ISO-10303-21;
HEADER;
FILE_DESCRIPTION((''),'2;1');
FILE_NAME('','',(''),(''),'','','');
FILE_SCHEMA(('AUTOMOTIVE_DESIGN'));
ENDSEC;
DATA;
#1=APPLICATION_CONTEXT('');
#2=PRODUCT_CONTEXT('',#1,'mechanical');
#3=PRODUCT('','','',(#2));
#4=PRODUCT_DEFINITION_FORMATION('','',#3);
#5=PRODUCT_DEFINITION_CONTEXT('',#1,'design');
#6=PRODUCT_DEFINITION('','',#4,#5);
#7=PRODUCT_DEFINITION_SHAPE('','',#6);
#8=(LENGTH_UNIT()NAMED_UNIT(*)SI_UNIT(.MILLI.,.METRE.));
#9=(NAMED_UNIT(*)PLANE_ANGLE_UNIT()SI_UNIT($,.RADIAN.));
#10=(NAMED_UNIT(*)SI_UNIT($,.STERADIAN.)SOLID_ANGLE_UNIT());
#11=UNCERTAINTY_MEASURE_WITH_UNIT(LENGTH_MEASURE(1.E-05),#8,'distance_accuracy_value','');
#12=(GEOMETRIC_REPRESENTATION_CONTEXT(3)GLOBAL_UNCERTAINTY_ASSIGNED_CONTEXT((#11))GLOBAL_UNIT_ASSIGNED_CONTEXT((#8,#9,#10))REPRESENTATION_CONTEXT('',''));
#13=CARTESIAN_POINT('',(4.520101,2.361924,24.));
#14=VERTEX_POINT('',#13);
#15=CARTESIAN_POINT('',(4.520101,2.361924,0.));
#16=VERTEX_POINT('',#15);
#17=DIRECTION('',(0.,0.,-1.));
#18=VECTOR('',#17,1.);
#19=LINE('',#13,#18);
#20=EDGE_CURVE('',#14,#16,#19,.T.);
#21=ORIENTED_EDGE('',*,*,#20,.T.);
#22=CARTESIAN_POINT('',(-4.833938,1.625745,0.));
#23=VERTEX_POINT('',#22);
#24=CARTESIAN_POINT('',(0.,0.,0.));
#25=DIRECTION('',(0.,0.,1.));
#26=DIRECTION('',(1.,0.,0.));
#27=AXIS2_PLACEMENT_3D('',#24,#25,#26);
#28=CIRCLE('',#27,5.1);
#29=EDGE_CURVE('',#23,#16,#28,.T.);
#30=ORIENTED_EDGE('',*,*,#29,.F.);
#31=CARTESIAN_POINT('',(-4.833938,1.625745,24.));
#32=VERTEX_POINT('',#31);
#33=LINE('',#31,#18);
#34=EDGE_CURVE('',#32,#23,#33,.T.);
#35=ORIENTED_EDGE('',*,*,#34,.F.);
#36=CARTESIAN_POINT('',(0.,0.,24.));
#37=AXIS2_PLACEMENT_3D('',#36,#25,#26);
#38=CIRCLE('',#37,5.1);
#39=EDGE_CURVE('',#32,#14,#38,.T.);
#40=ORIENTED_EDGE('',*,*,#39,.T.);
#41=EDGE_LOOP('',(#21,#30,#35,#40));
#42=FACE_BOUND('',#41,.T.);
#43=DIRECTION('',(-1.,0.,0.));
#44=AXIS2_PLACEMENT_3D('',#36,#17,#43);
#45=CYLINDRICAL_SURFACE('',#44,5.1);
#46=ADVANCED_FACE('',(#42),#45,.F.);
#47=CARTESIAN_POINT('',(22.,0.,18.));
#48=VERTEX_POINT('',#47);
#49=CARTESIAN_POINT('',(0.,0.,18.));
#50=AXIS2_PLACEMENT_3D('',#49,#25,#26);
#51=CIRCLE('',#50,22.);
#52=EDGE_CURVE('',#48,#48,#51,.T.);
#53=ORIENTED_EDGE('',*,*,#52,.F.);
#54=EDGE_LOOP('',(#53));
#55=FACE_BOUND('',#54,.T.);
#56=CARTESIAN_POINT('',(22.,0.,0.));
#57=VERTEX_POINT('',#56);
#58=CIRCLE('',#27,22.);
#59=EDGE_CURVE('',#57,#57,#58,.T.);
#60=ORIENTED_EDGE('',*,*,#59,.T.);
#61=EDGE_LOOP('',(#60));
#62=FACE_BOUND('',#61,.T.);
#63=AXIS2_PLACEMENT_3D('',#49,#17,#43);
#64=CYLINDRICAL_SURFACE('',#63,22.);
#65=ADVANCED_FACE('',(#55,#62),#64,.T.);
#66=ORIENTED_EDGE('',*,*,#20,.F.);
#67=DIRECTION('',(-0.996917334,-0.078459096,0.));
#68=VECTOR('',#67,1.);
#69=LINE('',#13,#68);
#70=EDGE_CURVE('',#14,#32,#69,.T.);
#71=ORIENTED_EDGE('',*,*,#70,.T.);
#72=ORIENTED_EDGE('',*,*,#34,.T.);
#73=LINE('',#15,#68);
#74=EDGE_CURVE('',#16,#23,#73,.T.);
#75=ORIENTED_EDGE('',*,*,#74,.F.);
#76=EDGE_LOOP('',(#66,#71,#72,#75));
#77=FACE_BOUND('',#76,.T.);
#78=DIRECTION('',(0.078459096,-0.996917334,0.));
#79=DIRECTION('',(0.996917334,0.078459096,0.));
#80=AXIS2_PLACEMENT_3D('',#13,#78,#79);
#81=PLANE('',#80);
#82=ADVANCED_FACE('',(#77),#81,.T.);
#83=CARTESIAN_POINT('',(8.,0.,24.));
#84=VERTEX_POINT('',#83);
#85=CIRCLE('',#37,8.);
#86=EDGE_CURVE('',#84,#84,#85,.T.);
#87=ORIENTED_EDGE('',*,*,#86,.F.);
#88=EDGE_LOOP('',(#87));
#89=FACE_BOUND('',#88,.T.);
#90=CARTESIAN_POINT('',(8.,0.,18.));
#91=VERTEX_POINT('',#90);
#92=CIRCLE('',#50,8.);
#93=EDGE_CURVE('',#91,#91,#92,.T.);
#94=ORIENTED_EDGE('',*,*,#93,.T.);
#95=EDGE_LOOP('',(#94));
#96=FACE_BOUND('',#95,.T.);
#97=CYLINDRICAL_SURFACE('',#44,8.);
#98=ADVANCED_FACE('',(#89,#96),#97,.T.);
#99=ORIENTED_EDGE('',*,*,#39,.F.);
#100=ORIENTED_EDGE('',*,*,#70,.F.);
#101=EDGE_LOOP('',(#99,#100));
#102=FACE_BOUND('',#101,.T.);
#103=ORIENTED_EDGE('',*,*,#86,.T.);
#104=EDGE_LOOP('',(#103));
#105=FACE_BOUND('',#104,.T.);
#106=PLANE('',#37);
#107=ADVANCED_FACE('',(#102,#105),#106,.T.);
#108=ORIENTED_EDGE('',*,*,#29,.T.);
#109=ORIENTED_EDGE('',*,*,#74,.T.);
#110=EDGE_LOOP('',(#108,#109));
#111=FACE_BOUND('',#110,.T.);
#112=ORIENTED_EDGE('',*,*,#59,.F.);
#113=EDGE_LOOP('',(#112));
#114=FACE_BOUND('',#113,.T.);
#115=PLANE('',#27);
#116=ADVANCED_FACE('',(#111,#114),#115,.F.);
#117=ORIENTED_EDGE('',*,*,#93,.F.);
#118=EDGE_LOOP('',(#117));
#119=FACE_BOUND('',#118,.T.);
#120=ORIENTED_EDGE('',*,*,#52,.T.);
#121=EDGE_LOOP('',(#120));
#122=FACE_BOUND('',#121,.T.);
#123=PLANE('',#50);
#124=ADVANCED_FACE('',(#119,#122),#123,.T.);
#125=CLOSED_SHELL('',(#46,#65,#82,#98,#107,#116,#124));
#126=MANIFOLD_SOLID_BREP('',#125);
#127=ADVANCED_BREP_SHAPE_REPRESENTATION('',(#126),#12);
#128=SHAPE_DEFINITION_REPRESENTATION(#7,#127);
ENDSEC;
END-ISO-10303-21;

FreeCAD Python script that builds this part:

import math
import FreeCAD as App
import Part
import Sketcher

V = App.Vector
Q = App.Units.Quantity

doc = App.newDocument("Part")
body = doc.addObject("PartDesign::Body", "Body")

# Sketch on XY plane
sketch1 = body.newObject("Sketcher::SketchObject", "Sketch")
sketch1.AttachmentSupport = (doc.getObject("XY_Plane"), [""])
sketch1.MapMode = "FlatFace"
sketch1.addGeometry(Part.Circle(V(0, 0, 0), V(0, 0, 1), 8), False)
sketch1.addGeometry(Part.LineSegment(V(-5, 2, 0), V(5, 2, 0)), False)
sketch1.addGeometry(Part.ArcOfCircle(Part.Circle(V(0, 0, 0), V(0, 0, 1), 5), math.radians(161), math.radians(388)), False)
sketch1.addConstraint(Sketcher.Constraint("Coincident", 1, 1, 2, 1))
sketch1.addConstraint(Sketcher.Constraint("Coincident", 2, 2, 1, 2))
sketch1.addConstraint(Sketcher.Constraint("Coincident", 0, 3, -1, 1))
sketch1.addConstraint(Sketcher.Constraint("Coincident", 2, 3, -1, 1))
sketch1.addConstraint(Sketcher.Constraint("Diameter", 0, Q("16 mm")))
sketch1.addConstraint(Sketcher.Constraint("Radius", 2, Q("5.1 mm")))
sketch1.addConstraint(Sketcher.Constraint("Angle", 1, Q("4.5 deg")))
sketch1.addConstraint(Sketcher.Constraint("DistanceX", -1, 1, 2, 2, Q("4.520101 mm")))
pad1 = body.newObject("PartDesign::Pad", "Pad")
pad1.Profile = sketch1
pad1.Length = 24

# Sketch on XY plane
sketch2 = body.newObject("Sketcher::SketchObject", "Sketch001")
sketch2.AttachmentSupport = (doc.getObject("XY_Plane"), [""])
sketch2.MapMode = "FlatFace"
sketch2.addGeometry(Part.Circle(V(0, 0, 0), V(0, 0, 1), 22), False)
sketch2.addGeometry(Part.Circle(V(0, 0, 0), V(0, 0, 1), 8), False)
sketch2.addConstraint(Sketcher.Constraint("Coincident", 0, 3, -1, 1))
sketch2.addConstraint(Sketcher.Constraint("Coincident", 1, 3, -1, 1))
sketch2.addConstraint(Sketcher.Constraint("Diameter", 0, Q("44 mm")))
sketch2.addConstraint(Sketcher.Constraint("Diameter", 1, Q("16 mm")))
pad2 = body.newObject("PartDesign::Pad", "Pad001")
pad2.Profile = sketch2
pad2.Length = 18

doc.recompute()
